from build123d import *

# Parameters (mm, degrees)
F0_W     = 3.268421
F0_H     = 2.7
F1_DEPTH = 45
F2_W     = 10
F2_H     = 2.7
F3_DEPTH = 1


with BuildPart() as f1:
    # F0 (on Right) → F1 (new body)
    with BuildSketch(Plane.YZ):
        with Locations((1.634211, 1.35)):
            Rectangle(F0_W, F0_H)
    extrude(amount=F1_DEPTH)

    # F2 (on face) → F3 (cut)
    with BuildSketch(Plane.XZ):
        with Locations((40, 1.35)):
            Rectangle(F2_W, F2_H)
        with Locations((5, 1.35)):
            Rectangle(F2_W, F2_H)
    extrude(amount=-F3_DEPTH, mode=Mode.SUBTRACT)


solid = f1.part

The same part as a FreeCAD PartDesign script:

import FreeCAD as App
import Part
import Sketcher
from FreeCAD import Vector
Q = App.Units.Quantity

doc = App.newDocument("Part")
body = doc.addObject("PartDesign::Body", "Body")

# Sketch on YZ plane
sketch1 = body.newObject("Sketcher::SketchObject", "Sketch")
sketch1.AttachmentSupport = (doc.getObject("YZ_Plane"), [""])
sketch1.MapMode = "FlatFace"
sketch1.addGeometry([
    Part.LineSegment(Vector(0, 2.7, 0), Vector(0, 0, 0)),
    Part.LineSegment(Vector(0, 0, 0), Vector(3.268422, 0, 0)),
    Part.LineSegment(Vector(3.268422, 0, 0), Vector(3.268422, 2.7, 0)),
    Part.LineSegment(Vector(3.268422, 2.7, 0), Vector(0, 2.7, 0)),
], False)
sketch1.addConstraint([
    Sketcher.Constraint("Coincident", 0, 2, 1, 1),
    Sketcher.Constraint("Coincident", 1, 2, 2, 1),
    Sketcher.Constraint("Coincident", 2, 2, 3, 1),
    Sketcher.Constraint("Coincident", 3, 2, 0, 1),
    Sketcher.Constraint("Vertical", 0),
    Sketcher.Constraint("Horizontal", 1),
    Sketcher.Constraint("Vertical", 2),
    Sketcher.Constraint("Horizontal", 3),
    Sketcher.Constraint("Coincident", 0, 2, -1, 1),
    Sketcher.Constraint("DistanceY", 0, 2, 0, 1, Q("2.7 mm")),
    Sketcher.Constraint("DistanceX", 1, 1, 1, 2, Q("3.268421 mm")),
])
pad1 = body.newObject("PartDesign::Pad", "Pad")
pad1.Profile = sketch1
pad1.Length = 45

# Sketch on XZ plane
sketch2 = body.newObject("Sketcher::SketchObject", "Sketch001")
sketch2.AttachmentSupport = (doc.getObject("XZ_Plane"), [""])
sketch2.MapMode = "FlatFace"
sketch2.addGeometry([
    Part.LineSegment(Vector(35, 2.7, 0), Vector(35, 0, 0)),  # 0
    Part.LineSegment(Vector(35, 0, 0), Vector(45, 0, 0)),  # 1
    Part.LineSegment(Vector(45, 0, 0), Vector(45, 2.7, 0)),  # 2
    Part.LineSegment(Vector(45, 2.7, 0), Vector(35, 2.7, 0)),  # 3
    Part.LineSegment(Vector(0, 2.7, 0), Vector(0, 0, 0)),  # 4
    Part.LineSegment(Vector(0, 0, 0), Vector(10, 0, 0)),  # 5
    Part.LineSegment(Vector(10, 0, 0), Vector(10, 2.7, 0)),  # 6
    Part.LineSegment(Vector(10, 2.7, 0), Vector(0, 2.7, 0)),  # 7
], False)
sketch2.addConstraint([
    Sketcher.Constraint("Coincident", 0, 2, 1, 1),
    Sketcher.Constraint("Coincident", 1, 2, 2, 1),
    Sketcher.Constraint("Coincident", 2, 2, 3, 1),
    Sketcher.Constraint("Coincident", 3, 2, 0, 1),
    Sketcher.Constraint("Coincident", 4, 2, 5, 1),
    Sketcher.Constraint("Coincident", 5, 2, 6, 1),
    Sketcher.Constraint("Coincident", 6, 2, 7, 1),
    Sketcher.Constraint("Coincident", 7, 2, 4, 1),
    Sketcher.Constraint("Vertical", 0),
    Sketcher.Constraint("Horizontal", 1),
    Sketcher.Constraint("Vertical", 2),
    Sketcher.Constraint("Horizontal", 3),
    Sketcher.Constraint("Vertical", 4),
    Sketcher.Constraint("Horizontal", 5),
    Sketcher.Constraint("Vertical", 6),
    Sketcher.Constraint("Horizontal", 7),
    Sketcher.Constraint("Coincident", 4, 2, -1, 1),
    Sketcher.Constraint("PointOnObject", 0, 2, -1),
    Sketcher.Constraint("Horizontal", 3, 2, 6, 2),
    Sketcher.Constraint("Equal", 3, 5),
    Sketcher.Constraint("DistanceX", 1, 1, 1, 2, Q("10 mm")),
    Sketcher.Constraint("DistanceY", 0, 2, 0, 1, Q("2.7 mm")),
    Sketcher.Constraint("DistanceX", -1, 1, 0, 2, Q("35 mm")),
])
pocket1 = body.newObject("PartDesign::Pocket", "Pocket")
pocket1.Profile = sketch2
pocket1.Length = 1

doc.recompute()
